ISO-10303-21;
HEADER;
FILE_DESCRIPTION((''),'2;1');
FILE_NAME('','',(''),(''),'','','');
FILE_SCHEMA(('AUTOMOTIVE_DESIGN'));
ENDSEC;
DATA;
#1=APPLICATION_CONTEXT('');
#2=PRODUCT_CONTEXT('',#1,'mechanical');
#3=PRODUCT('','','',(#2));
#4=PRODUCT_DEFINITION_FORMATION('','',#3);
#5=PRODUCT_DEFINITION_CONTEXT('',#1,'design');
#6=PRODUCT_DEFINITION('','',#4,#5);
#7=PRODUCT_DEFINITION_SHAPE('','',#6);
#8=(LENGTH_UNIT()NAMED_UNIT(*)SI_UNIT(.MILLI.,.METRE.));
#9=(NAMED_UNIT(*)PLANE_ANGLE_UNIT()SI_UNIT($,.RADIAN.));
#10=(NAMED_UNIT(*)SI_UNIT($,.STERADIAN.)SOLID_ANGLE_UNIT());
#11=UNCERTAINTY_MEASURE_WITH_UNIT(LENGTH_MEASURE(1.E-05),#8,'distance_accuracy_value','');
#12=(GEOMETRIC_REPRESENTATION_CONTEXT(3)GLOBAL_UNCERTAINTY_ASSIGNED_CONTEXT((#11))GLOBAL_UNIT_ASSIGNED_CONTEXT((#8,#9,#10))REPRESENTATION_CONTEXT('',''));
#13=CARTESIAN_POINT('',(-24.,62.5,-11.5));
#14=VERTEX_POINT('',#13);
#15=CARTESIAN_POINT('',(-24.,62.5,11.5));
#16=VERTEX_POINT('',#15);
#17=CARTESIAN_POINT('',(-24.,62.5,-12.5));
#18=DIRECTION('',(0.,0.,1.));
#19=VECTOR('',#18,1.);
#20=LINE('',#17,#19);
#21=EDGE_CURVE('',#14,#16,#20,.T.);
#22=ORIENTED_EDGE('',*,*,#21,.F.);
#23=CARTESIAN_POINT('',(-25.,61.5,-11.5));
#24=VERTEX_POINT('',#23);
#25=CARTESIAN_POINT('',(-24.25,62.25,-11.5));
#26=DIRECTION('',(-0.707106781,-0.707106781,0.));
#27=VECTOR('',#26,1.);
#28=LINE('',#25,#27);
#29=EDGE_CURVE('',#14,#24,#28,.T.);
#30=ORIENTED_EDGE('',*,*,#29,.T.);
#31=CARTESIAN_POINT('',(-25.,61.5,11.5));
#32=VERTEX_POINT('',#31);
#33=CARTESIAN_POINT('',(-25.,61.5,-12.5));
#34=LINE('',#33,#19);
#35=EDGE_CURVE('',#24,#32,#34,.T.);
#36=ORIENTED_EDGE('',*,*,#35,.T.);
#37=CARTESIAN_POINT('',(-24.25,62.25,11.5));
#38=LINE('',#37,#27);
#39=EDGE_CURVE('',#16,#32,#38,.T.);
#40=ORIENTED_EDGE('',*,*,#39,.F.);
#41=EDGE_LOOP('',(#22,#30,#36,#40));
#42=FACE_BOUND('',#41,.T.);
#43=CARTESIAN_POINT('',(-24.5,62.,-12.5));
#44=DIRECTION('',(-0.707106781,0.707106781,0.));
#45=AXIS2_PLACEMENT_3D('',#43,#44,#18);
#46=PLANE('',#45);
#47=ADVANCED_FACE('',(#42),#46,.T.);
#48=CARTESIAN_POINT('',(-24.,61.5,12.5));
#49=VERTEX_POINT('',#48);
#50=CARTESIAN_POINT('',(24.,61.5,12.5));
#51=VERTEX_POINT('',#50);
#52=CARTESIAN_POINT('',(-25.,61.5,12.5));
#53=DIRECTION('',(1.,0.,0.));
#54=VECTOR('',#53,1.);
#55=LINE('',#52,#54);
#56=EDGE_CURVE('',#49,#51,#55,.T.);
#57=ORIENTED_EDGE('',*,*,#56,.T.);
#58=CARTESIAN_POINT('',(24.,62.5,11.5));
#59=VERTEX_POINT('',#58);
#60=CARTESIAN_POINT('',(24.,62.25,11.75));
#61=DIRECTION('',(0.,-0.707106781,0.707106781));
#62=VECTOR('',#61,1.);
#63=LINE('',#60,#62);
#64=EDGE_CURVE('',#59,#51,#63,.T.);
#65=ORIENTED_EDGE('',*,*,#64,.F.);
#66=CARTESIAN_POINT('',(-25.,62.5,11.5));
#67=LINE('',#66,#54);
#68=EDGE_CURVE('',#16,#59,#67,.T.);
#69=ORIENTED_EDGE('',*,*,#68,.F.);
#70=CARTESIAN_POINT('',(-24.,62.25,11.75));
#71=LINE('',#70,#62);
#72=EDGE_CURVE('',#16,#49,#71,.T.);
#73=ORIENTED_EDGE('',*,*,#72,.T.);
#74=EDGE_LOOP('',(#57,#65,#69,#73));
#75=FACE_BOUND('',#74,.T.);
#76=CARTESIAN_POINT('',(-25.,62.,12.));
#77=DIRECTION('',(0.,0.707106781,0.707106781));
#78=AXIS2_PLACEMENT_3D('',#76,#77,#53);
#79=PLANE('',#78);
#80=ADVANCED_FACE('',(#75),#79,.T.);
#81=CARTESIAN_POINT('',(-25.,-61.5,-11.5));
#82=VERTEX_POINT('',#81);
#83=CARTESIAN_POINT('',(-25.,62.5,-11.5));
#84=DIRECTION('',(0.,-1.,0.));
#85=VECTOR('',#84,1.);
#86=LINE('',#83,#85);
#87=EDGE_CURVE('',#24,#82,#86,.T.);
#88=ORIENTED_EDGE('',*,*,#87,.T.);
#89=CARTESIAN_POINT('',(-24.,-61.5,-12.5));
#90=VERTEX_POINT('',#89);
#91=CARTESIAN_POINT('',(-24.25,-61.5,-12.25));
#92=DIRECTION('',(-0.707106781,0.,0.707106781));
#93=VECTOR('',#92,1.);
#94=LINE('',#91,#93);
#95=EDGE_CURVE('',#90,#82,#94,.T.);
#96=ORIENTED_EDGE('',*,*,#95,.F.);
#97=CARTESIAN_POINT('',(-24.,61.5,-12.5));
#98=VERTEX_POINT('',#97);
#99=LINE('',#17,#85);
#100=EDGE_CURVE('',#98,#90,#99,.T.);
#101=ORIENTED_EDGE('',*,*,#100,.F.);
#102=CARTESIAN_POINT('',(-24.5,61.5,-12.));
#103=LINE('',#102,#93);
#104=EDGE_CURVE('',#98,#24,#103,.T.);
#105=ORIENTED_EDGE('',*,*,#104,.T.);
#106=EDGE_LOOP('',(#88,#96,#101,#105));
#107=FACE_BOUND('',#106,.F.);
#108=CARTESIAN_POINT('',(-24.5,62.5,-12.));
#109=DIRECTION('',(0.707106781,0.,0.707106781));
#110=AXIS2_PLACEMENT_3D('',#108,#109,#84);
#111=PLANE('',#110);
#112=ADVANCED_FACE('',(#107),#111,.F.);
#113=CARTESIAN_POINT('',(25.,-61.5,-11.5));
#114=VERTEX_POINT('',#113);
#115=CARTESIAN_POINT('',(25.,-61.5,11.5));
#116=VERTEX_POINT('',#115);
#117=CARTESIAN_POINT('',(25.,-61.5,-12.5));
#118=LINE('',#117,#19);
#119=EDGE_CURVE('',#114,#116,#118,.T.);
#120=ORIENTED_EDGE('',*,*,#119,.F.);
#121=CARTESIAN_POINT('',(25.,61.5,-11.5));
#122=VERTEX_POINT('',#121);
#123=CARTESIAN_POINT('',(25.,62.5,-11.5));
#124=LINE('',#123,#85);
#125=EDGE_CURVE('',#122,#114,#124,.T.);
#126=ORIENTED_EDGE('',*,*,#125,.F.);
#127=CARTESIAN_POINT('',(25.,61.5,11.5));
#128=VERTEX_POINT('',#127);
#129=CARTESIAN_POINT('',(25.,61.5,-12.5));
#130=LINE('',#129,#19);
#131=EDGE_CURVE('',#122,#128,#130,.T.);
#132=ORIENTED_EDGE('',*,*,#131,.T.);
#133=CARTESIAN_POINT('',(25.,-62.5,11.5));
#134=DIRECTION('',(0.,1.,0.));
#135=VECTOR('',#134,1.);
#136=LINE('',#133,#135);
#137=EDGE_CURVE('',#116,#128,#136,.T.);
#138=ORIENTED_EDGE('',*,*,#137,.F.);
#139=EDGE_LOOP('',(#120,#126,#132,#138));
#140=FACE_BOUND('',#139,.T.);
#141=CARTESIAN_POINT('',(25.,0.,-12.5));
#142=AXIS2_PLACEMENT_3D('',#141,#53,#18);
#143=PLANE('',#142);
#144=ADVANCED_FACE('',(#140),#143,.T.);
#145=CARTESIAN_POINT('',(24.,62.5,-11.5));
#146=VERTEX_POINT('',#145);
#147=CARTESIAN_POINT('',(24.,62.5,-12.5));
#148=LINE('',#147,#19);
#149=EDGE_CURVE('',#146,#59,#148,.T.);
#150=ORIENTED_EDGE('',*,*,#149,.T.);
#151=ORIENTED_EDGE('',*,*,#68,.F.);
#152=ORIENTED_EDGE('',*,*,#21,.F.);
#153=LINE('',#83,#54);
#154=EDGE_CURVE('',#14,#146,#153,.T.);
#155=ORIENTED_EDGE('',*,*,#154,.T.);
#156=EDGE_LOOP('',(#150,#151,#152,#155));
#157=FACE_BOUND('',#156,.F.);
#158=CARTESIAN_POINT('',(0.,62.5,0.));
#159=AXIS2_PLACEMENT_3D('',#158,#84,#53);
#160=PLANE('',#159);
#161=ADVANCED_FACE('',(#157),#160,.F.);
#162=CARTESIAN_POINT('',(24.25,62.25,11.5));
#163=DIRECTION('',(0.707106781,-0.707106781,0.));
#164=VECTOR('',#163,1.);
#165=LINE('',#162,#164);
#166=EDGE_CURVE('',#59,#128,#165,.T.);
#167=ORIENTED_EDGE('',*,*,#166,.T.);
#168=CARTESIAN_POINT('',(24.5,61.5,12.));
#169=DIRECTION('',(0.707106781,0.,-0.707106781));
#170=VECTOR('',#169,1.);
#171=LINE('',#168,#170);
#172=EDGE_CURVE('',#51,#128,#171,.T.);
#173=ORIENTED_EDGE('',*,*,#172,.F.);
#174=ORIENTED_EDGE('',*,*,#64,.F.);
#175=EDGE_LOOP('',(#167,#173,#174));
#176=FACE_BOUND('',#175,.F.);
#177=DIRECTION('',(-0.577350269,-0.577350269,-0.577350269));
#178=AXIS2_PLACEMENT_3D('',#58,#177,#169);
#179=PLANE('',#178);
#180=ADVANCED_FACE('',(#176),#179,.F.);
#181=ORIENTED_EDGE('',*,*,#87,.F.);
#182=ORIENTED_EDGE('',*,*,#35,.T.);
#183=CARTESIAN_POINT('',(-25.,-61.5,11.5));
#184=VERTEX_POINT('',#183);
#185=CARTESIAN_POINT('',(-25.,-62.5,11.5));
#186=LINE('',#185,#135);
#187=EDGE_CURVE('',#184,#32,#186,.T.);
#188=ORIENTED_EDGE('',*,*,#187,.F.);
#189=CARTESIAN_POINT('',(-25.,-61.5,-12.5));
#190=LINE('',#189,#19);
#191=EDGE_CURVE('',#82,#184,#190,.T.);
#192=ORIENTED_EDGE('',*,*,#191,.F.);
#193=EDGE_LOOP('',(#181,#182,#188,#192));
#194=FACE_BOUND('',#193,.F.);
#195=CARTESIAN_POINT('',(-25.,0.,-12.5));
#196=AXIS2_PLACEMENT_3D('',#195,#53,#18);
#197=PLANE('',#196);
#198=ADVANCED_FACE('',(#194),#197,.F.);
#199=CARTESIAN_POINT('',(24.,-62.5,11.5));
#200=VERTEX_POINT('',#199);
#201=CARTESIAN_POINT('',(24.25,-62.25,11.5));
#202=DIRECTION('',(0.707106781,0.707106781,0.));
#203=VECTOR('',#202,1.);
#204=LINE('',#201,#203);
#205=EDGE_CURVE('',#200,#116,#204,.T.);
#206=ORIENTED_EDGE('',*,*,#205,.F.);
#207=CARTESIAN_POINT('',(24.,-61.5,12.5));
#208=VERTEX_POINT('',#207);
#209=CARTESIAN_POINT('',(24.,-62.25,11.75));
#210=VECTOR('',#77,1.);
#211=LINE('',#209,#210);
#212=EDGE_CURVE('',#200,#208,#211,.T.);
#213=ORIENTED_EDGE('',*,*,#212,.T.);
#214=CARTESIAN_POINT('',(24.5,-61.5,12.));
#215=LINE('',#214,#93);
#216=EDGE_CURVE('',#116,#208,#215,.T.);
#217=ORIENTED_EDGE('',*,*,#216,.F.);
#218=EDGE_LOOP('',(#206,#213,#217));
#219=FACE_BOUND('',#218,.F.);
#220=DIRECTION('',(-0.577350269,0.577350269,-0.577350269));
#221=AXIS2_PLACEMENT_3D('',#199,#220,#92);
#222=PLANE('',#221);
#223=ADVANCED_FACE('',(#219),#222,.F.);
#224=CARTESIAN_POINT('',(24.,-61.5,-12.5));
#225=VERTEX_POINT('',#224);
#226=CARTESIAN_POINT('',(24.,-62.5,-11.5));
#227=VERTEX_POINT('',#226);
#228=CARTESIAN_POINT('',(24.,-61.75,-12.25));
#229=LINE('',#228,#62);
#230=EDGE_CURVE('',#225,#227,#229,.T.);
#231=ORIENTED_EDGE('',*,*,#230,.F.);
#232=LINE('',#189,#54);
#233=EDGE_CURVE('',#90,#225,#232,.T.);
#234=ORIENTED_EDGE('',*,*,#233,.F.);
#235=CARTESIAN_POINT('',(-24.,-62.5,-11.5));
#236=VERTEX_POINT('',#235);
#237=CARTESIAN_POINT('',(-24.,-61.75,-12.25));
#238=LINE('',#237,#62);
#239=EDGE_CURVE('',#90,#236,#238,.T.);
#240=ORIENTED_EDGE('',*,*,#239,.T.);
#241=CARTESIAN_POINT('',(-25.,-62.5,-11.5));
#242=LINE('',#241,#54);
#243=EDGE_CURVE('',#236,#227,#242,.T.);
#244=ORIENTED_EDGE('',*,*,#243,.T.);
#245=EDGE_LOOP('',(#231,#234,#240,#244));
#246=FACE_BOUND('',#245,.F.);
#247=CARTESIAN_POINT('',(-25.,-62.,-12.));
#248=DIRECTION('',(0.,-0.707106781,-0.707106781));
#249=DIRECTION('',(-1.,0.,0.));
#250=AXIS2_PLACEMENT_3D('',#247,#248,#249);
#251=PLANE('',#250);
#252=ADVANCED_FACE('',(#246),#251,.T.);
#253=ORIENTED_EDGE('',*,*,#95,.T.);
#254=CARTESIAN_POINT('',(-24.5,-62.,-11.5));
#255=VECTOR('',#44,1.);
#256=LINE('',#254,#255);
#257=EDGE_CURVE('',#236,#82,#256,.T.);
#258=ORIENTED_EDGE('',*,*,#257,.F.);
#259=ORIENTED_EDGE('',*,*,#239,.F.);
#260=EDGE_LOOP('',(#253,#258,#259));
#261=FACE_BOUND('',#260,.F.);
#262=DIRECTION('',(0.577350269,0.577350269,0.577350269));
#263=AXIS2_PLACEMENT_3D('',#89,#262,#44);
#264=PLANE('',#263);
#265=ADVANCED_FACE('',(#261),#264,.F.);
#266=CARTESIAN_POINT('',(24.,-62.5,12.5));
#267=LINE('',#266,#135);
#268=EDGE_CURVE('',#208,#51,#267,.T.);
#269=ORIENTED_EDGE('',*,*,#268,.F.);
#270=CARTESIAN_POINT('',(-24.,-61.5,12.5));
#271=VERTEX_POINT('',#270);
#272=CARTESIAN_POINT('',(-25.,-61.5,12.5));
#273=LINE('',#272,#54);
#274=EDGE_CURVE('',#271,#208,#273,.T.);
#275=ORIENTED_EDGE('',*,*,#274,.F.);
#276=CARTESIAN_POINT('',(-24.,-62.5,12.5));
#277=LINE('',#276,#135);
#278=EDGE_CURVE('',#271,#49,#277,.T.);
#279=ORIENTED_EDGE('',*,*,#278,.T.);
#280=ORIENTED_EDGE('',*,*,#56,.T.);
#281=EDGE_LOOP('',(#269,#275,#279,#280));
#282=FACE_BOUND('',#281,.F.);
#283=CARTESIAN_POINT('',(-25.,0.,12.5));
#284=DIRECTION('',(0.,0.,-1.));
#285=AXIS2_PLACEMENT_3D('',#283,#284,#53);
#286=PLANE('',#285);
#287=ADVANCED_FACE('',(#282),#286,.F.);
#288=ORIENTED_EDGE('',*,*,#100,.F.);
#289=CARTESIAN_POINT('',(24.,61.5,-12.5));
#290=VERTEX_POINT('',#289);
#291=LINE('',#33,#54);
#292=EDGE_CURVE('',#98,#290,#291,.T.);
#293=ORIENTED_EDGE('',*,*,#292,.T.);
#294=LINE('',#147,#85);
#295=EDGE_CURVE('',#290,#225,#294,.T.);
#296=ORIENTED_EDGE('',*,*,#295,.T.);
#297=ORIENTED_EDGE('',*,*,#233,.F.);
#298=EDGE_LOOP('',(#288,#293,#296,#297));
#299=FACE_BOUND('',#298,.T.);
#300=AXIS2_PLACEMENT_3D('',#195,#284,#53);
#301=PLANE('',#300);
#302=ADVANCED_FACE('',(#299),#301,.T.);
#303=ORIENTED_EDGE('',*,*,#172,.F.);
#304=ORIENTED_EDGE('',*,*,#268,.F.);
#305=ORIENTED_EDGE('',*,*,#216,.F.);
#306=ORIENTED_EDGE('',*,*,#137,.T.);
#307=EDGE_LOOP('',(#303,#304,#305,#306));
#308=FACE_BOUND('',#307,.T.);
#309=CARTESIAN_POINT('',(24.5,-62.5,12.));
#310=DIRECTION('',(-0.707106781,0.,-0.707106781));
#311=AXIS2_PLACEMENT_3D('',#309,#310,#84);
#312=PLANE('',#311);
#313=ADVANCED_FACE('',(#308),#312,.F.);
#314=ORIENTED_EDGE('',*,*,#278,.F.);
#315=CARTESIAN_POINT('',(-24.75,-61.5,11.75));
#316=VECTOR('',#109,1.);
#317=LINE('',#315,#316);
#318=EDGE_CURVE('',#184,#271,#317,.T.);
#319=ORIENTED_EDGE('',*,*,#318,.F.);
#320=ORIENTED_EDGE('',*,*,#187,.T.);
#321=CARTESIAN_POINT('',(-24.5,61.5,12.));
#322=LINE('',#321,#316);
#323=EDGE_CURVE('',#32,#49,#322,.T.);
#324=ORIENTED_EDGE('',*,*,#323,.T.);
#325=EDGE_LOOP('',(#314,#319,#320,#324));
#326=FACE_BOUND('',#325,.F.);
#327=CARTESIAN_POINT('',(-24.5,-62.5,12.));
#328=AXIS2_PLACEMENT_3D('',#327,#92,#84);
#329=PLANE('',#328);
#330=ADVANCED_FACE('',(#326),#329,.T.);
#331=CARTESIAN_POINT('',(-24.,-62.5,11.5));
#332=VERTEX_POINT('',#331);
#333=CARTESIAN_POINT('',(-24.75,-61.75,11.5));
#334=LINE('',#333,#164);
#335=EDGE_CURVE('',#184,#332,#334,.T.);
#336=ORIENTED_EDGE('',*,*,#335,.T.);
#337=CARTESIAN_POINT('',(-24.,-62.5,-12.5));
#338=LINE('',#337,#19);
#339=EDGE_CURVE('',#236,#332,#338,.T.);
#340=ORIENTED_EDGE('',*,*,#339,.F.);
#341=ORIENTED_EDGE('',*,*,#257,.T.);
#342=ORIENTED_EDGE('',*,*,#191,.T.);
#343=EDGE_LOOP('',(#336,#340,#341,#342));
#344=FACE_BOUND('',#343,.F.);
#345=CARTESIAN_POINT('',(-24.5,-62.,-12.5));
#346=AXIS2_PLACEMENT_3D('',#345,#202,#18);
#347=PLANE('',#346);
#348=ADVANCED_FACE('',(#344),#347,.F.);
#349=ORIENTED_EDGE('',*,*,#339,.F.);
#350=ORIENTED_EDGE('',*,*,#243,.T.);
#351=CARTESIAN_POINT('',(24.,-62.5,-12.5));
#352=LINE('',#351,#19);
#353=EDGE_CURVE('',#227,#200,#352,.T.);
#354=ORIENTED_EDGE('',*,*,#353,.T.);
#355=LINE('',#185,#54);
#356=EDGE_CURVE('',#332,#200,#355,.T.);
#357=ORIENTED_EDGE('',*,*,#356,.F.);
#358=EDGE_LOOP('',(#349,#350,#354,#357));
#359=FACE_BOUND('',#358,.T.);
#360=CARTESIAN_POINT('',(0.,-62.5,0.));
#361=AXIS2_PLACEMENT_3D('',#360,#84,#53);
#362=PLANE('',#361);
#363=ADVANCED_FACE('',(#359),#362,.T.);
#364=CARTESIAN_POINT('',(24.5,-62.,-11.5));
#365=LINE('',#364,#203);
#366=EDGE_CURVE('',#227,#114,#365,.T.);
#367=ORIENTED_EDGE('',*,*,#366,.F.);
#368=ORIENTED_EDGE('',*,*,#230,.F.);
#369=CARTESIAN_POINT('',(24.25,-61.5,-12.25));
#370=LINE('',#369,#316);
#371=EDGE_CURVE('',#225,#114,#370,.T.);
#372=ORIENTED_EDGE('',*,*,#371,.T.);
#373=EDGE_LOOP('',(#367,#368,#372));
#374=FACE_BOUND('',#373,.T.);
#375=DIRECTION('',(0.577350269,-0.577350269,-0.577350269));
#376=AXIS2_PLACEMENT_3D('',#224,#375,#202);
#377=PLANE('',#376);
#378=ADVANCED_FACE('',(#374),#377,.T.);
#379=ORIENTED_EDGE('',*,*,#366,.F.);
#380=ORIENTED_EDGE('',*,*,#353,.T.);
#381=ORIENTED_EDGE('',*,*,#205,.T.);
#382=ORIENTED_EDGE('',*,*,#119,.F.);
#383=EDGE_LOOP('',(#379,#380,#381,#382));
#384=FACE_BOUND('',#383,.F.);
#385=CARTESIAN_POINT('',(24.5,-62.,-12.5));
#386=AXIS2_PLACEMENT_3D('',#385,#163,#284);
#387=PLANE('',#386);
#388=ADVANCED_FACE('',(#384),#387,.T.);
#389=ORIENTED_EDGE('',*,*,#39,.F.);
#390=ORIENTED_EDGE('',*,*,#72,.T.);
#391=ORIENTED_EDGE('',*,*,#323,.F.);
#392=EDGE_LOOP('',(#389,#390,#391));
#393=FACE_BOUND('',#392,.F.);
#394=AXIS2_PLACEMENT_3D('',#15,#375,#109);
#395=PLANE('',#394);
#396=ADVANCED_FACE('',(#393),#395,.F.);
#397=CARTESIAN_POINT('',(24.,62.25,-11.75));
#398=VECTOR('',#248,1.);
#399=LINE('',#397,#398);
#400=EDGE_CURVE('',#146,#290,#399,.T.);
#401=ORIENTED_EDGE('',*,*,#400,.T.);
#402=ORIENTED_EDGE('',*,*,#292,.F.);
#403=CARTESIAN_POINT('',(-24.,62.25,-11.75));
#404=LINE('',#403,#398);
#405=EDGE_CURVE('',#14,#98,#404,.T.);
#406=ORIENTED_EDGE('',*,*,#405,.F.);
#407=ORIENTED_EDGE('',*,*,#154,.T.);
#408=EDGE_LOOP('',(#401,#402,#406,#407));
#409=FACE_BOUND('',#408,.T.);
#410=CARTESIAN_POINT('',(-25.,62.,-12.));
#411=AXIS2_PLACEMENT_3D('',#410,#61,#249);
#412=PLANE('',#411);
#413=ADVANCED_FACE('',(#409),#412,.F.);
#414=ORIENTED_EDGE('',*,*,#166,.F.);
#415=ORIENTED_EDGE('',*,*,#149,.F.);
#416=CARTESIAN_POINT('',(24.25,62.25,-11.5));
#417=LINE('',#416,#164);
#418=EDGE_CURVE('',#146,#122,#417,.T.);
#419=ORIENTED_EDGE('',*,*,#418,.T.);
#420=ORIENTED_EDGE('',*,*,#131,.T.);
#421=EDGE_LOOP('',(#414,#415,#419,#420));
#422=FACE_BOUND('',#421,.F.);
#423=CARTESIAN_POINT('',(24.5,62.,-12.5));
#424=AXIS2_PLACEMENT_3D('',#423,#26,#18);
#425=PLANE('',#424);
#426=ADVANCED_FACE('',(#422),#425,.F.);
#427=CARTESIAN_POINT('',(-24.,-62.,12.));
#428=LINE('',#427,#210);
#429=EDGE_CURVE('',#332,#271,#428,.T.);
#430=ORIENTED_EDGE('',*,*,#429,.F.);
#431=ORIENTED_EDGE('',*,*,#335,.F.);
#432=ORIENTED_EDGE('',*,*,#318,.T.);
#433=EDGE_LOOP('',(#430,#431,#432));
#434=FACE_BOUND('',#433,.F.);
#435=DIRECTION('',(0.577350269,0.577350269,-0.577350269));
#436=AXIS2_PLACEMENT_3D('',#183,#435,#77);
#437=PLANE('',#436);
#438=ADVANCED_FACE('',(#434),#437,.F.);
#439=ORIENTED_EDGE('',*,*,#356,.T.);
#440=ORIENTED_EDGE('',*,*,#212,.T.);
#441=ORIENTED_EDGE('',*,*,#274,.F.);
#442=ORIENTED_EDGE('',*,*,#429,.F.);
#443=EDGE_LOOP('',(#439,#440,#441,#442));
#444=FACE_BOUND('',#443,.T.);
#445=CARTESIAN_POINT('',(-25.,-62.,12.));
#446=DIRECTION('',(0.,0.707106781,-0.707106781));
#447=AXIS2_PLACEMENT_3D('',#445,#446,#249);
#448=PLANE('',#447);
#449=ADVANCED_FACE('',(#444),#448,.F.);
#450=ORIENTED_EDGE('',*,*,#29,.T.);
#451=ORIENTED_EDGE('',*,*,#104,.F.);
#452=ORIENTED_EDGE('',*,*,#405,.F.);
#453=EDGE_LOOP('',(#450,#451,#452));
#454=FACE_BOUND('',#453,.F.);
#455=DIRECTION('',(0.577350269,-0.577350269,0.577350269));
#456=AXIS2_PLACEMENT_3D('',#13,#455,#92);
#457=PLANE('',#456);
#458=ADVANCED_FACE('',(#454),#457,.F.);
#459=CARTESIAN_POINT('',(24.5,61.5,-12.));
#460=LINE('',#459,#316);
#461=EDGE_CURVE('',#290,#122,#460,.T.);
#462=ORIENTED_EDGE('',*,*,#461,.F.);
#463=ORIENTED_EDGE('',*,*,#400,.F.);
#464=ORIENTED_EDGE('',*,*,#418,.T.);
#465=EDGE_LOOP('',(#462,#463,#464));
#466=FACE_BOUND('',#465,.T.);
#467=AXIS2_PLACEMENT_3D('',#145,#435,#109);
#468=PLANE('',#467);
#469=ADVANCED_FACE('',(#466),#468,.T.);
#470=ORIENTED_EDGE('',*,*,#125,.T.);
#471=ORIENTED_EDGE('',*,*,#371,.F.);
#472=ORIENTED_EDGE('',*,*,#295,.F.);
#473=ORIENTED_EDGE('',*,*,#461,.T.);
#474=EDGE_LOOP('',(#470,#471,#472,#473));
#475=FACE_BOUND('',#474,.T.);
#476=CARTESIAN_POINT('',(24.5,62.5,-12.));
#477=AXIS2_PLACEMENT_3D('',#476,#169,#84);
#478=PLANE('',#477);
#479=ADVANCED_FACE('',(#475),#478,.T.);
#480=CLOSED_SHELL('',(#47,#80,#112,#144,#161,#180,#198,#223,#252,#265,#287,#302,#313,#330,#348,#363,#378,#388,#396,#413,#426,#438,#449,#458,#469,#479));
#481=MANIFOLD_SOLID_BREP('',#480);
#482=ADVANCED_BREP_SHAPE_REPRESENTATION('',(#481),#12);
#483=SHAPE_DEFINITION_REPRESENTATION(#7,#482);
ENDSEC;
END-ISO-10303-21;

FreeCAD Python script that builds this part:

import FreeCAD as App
import Part
import Sketcher

doc = App.newDocument("Part")
params = doc.addObject("Spreadsheet::Sheet", "Params")
for row, (alias, value) in enumerate([
    ("sketch1_width", "50 mm"),
    ("sketch1_height", "25 mm"),
    ("pad1_length", "125 mm"),
    ("chamfer_size", "1 mm"),
], start=1):
    params.set(f"A{row}", alias)
    params.set(f"B{row}", "=" + value)
    params.setAlias(f"B{row}", alias)

body = doc.addObject("PartDesign::Body", "Body")

# Sketch on XZ plane
sketch1 = body.newObject("Sketcher::SketchObject", "Sketch")
sketch1.AttachmentSupport = (doc.getObject("XZ_Plane"), [""])
sketch1.MapMode = "FlatFace"
sketch1.addGeometry([
    Part.LineSegment(App.Vector(-25, 12.5, 0), App.Vector(-25, -12.5, 0)),
    Part.LineSegment(App.Vector(-25, -12.5, 0), App.Vector(25, -12.5, 0)),
    Part.LineSegment(App.Vector(25, -12.5, 0), App.Vector(25, 12.5, 0)),
    Part.LineSegment(App.Vector(25, 12.5, 0), App.Vector(-25, 12.5, 0)),
], False)
sketch1.addConstraint([
    Sketcher.Constraint("Coincident", 0, 2, 1, 1),
    Sketcher.Constraint("Coincident", 1, 2, 2, 1),
    Sketcher.Constraint("Coincident", 2, 2, 3, 1),
    Sketcher.Constraint("Coincident", 3, 2, 0, 1),
    Sketcher.Constraint("Vertical", 0),
    Sketcher.Constraint("Horizontal", 1),
    Sketcher.Constraint("Vertical", 2),
    Sketcher.Constraint("Horizontal", 3),
    Sketcher.Constraint("Symmetric", 0, 2, 2, 2, -1, 1),
    Sketcher.Constraint("DistanceX", 1, 1, 1, 2, 50.0),
    Sketcher.Constraint("DistanceY", 0, 2, 0, 1, 25.0),
])
sketch1.setExpression("Constraints[9]", "Params.sketch1_width")
sketch1.setExpression("Constraints[10]", "Params.sketch1_height")
pad1 = body.newObject("PartDesign::Pad", "Pad")
pad1.Profile = sketch1
pad1.setExpression("Length", "Params.pad1_length")
pad1.Midplane = True
doc.recompute()

chamfer = body.newObject("PartDesign::Chamfer", "Chamfer")
chamfer.Base = (pad1, ["Edge1"])
chamfer.UseAllEdges = True
chamfer.setExpression("Size", "Params.chamfer_size")

doc.recompute()
